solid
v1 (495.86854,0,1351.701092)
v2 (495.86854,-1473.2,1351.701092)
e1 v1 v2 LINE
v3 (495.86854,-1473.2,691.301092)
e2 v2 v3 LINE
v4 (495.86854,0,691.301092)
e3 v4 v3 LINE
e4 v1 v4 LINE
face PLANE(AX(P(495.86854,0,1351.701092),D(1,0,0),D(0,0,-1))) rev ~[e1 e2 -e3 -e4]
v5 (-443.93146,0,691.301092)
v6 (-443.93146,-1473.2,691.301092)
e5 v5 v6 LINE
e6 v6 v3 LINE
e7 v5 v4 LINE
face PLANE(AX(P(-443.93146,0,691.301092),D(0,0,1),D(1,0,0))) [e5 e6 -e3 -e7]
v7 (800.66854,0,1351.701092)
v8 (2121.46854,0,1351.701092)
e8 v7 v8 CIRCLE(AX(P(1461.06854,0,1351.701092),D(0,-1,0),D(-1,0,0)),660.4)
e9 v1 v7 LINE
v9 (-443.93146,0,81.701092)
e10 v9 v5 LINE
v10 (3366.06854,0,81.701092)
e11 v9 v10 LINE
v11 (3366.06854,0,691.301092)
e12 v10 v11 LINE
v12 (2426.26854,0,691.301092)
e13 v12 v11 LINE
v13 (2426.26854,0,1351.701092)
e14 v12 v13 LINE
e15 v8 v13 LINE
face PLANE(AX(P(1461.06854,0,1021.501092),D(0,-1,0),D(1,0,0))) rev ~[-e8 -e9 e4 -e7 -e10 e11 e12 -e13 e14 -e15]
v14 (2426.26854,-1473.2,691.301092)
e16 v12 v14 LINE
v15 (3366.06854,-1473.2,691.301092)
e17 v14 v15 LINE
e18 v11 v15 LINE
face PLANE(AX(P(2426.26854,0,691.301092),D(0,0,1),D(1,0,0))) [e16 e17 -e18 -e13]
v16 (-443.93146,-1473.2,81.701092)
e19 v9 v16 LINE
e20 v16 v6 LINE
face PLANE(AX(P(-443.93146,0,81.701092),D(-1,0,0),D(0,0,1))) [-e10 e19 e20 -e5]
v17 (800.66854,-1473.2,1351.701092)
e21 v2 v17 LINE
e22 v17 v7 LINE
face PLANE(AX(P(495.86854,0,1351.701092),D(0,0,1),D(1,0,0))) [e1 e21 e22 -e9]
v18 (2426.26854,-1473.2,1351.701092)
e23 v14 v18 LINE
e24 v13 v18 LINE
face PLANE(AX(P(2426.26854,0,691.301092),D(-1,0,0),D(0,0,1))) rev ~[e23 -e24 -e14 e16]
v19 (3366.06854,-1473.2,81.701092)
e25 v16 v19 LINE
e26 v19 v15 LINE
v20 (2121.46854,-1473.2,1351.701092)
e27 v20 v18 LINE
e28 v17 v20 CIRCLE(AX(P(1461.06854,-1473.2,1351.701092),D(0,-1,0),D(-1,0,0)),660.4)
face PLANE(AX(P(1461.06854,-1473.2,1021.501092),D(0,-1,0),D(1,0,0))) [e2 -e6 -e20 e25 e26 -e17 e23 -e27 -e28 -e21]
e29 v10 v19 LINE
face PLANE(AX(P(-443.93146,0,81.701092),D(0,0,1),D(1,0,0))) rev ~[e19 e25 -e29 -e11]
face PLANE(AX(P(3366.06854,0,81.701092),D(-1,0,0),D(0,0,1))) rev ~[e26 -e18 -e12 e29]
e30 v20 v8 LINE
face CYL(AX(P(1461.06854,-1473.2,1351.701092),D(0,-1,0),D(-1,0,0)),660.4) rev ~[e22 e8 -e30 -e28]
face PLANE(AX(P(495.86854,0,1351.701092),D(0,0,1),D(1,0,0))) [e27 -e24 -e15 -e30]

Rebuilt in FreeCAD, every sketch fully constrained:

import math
import FreeCAD as App
import Part
import Sketcher
from FreeCAD import Vector
Q = App.Units.Quantity

doc = App.newDocument("Part")
params = doc.addObject("Spreadsheet::Sheet", "Params")
for row, (alias, value) in enumerate([
    ("sketch1_width", "37 in"),
    ("sketch1_width2", "150 in"),
    ("sketch1_height", "26 in"),
    ("sketch1_height2", "24 in"),
    ("pad1_length", "58 in"),
    ("sketch2_radius", "26 in"),
    ("pocket1_length", "62 in"),
], start=1):
    params.set(f"A{row}", alias)
    params.set(f"B{row}", "=" + value)
    params.setAlias(f"B{row}", alias)

body = doc.addObject("PartDesign::Body", "Body")

# Sketch on XZ plane
sketch1 = body.newObject("Sketcher::SketchObject", "Sketch")
sketch1.AttachmentSupport = (doc.getObject("XZ_Plane"), [""])
sketch1.MapMode = "FlatFace"
sketch1.addGeometry([
    Part.LineSegment(Vector(496, 1352, 0), Vector(496, 691, 0)),  # 0
    Part.LineSegment(Vector(496, 691, 0), Vector(-444, 691, 0)),  # 1
    Part.LineSegment(Vector(-444, 691, 0), Vector(-444, 82, 0)),  # 2
    Part.LineSegment(Vector(-444, 82, 0), Vector(3366, 82, 0)),  # 3
    Part.LineSegment(Vector(3366, 82, 0), Vector(3366, 691, 0)),  # 4
    Part.LineSegment(Vector(3366, 691, 0), Vector(2426, 691, 0)),  # 5
    Part.LineSegment(Vector(2426, 691, 0), Vector(2426, 1352, 0)),  # 6
    Part.LineSegment(Vector(2426, 1352, 0), Vector(496, 1352, 0)),  # 7
], False)
sketch1.addConstraint([
    Sketcher.Constraint("Coincident", 0, 2, 1, 1),
    Sketcher.Constraint("Coincident", 1, 2, 2, 1),
    Sketcher.Constraint("Coincident", 2, 2, 3, 1),
    Sketcher.Constraint("Coincident", 3, 2, 4, 1),
    Sketcher.Constraint("Coincident", 4, 2, 5, 1),
    Sketcher.Constraint("Coincident", 5, 2, 6, 1),
    Sketcher.Constraint("Coincident", 6, 2, 7, 1),
    Sketcher.Constraint("Coincident", 7, 2, 0, 1),
    Sketcher.Constraint("Vertical", 0),
    Sketcher.Constraint("Horizontal", 1),
    Sketcher.Constraint("Vertical", 2),
    Sketcher.Constraint("Horizontal", 3),
    Sketcher.Constraint("Vertical", 4),
    Sketcher.Constraint("Horizontal", 5),
    Sketcher.Constraint("Vertical", 6),
    Sketcher.Constraint("Horizontal", 7),
    Sketcher.Constraint("Horizontal", 1, 2, 4, 2),
    Sketcher.Constraint("Equal", 1, 5),
    Sketcher.Constraint("DistanceX", 1, 2, 1, 1, Q("37 in")),
    Sketcher.Constraint("DistanceX", 3, 1, 3, 2, Q("150 in")),
    Sketcher.Constraint("DistanceY", 0, 2, 0, 1, Q("26 in")),
    Sketcher.Constraint("DistanceY", 2, 2, 2, 1, Q("24 in")),
    Sketcher.Constraint("DistanceX", -1, 1, 0, 2, Q("495.86854 mm")),
    Sketcher.Constraint("DistanceY", -1, 1, 0, 2, Q("691.301092 mm")),
])
sketch1.setExpression("Constraints[18]", "Params.sketch1_width")
sketch1.setExpression("Constraints[19]", "Params.sketch1_width2")
sketch1.setExpression("Constraints[20]", "Params.sketch1_height")
sketch1.setExpression("Constraints[21]", "Params.sketch1_height2")
pad1 = body.newObject("PartDesign::Pad", "Pad")
pad1.Profile = sketch1
pad1.setExpression("Length", "Params.pad1_length")

# Sketch on XZ plane
sketch2 = body.newObject("Sketcher::SketchObject", "Sketch001")
sketch2.AttachmentSupport = (doc.getObject("XZ_Plane"), [""])
sketch2.MapMode = "FlatFace"
sketch2.AttachmentOffset = App.Placement(Vector(0, 0, 58 * 25.4), App.Rotation())
sketch2.addGeometry([
    Part.ArcOfCircle(Part.Circle(Vector(1461, 1352, 0), Vector(0, 0, 1), 660), math.radians(180), math.radians(360)),
    Part.LineSegment(Vector(2121, 1352, 0), Vector(801, 1352, 0)),
], False)
sketch2.addConstraint([
    Sketcher.Constraint("Coincident", 0, 1, 1, 2),
    Sketcher.Constraint("Coincident", 1, 1, 0, 2),
    Sketcher.Constraint("Horizontal", 1),
    Sketcher.Constraint("Radius", 0, Q("26 in")),
    Sketcher.Constraint("DistanceX", -1, 1, 0, 3, Q("1461.06854 mm")),
    Sketcher.Constraint("DistanceY", -1, 1, 0, 3, Q("1351.701092 mm")),
    Sketcher.Constraint("DistanceY", -1, 1, 1, 1, Q("1351.701092 mm")),
])
sketch2.setExpression("Constraints[3]", "Params.sketch2_radius")
pocket1 = body.newObject("PartDesign::Pocket", "Pocket")
pocket1.Profile = sketch2
pocket1.setExpression("Length", "Params.pocket1_length")

doc.recompute()
